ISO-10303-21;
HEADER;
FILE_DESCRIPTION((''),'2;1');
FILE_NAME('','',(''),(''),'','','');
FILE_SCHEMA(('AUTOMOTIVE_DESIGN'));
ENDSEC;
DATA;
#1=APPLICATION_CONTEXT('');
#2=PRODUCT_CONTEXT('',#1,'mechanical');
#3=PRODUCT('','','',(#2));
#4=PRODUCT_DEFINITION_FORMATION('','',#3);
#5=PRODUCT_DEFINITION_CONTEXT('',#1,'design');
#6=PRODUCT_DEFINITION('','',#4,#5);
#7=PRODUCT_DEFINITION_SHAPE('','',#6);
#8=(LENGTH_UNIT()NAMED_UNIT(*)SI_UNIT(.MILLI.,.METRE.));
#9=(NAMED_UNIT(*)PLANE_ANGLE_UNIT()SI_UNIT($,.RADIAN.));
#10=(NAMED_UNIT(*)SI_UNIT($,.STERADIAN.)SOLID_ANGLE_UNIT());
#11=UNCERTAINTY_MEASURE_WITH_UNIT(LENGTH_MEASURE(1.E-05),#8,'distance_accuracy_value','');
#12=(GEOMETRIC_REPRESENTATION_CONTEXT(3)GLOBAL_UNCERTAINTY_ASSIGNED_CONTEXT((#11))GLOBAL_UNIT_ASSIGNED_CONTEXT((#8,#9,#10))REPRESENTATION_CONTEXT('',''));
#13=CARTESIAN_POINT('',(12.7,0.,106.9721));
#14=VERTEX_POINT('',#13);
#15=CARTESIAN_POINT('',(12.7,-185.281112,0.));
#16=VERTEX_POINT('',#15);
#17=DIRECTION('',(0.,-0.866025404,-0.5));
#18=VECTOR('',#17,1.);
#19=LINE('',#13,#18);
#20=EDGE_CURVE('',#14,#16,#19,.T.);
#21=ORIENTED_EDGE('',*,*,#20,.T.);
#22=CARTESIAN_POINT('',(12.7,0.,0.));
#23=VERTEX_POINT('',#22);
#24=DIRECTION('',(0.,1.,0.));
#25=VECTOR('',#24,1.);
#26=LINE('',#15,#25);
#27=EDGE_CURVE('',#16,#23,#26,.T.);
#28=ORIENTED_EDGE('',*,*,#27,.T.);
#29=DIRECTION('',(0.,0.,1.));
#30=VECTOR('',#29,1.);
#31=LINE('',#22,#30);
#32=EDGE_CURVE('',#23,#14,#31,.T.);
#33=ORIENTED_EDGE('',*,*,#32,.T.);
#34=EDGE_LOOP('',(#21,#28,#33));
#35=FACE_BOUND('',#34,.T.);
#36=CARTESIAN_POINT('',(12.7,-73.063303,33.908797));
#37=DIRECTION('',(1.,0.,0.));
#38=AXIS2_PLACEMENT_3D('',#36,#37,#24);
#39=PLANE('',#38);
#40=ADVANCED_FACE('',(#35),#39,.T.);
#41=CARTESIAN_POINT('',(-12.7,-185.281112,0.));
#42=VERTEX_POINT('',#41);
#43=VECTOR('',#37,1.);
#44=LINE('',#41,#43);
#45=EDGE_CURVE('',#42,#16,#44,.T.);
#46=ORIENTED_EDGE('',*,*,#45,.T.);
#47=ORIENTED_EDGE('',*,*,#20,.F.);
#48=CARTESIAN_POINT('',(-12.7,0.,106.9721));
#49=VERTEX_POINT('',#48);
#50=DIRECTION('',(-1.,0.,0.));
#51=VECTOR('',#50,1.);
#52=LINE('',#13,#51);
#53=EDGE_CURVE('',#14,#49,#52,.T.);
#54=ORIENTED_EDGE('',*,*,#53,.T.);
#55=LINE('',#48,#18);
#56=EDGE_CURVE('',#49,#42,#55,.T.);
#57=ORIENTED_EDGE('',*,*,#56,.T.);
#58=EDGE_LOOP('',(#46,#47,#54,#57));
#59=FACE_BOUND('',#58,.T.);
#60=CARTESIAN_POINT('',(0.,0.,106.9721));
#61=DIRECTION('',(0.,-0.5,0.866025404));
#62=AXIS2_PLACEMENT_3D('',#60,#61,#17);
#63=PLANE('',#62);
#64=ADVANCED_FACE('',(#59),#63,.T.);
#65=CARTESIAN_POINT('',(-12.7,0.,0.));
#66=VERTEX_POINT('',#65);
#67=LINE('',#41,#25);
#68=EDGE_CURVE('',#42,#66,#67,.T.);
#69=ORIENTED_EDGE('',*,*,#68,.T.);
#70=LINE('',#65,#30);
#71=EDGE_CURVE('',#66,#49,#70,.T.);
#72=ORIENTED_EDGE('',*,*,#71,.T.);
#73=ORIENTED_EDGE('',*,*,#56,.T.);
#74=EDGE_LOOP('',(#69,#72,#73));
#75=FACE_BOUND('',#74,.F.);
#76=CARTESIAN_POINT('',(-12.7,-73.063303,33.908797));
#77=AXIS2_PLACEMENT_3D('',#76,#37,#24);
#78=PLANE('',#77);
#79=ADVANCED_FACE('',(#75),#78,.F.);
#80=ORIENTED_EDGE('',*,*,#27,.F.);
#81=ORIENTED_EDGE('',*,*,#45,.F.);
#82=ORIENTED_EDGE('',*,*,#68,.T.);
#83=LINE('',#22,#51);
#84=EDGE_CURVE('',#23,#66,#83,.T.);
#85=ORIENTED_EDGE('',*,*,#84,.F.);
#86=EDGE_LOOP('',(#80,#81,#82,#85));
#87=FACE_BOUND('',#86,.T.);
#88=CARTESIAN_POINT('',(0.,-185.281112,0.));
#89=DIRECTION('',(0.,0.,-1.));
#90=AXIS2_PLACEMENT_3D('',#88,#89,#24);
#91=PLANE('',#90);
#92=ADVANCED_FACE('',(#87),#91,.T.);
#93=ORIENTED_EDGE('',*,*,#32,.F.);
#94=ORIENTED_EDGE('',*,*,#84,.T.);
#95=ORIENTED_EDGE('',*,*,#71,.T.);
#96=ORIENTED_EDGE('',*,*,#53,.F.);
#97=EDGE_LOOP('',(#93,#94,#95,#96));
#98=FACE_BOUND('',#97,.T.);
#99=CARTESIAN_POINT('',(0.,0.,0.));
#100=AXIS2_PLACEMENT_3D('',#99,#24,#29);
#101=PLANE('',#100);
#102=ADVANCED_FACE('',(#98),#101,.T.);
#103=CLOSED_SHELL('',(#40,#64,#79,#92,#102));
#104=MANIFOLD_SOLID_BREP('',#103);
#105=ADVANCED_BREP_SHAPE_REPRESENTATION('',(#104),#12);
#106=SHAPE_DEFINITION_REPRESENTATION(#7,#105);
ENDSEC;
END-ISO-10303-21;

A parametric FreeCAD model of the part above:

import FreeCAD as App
import Part
import Sketcher
from FreeCAD import Vector
Q = App.Units.Quantity


def add_polygon(sketch, points):
    """Adds a closed chain of lines whose ends are joined by coincident constraints."""
    first, n = sketch.GeometryCount, len(points)
    for a, b in zip(points, points[1:] + points[:1]):
        sketch.addGeometry(Part.LineSegment(App.Vector(*a, 0), App.Vector(*b, 0)), False)
    for i in range(n):
        sketch.addConstraint(Sketcher.Constraint("Coincident", first + i, 2, first + (i + 1) % n, 1))

doc = App.newDocument("Part")
params = doc.addObject("Spreadsheet::Sheet", "Params")
for row, (alias, value) in enumerate([
    ("sketch1_length", "8.423 in"),
    ("pad1_length", "1 in"),
], start=1):
    params.set(f"A{row}", alias)
    params.set(f"B{row}", "=" + value)
    params.setAlias(f"B{row}", alias)

body = doc.addObject("PartDesign::Body", "Body")

sketch1 = doc.addObject("Sketcher::SketchObject", "Sketch")
body.addObject(sketch1)
sketch1.AttachmentSupport = (doc.YZ_Plane, [""])
sketch1.MapMode = "FlatFace"
add_polygon(sketch1, [(0, 107), (-185, 0), (0, 0)])
sketch1.addConstraint([
    Sketcher.Constraint("Horizontal", 1),
    Sketcher.Constraint("Vertical", 2),
    Sketcher.Constraint("Coincident", 1, 2, -1, 1),
    Sketcher.Constraint("Angle", 0, Q("-150 deg")),
    Sketcher.Constraint("Distance", 0, Q("8.423 in")),
])
sketch1.setExpression("Constraints[7]", "Params.sketch1_length")
pad1 = doc.addObject("PartDesign::Pad", "Pad")
body.addObject(pad1)
pad1.Profile = sketch1
pad1.setExpression("Length", "Params.pad1_length")
pad1.Midplane = True

doc.recompute()
